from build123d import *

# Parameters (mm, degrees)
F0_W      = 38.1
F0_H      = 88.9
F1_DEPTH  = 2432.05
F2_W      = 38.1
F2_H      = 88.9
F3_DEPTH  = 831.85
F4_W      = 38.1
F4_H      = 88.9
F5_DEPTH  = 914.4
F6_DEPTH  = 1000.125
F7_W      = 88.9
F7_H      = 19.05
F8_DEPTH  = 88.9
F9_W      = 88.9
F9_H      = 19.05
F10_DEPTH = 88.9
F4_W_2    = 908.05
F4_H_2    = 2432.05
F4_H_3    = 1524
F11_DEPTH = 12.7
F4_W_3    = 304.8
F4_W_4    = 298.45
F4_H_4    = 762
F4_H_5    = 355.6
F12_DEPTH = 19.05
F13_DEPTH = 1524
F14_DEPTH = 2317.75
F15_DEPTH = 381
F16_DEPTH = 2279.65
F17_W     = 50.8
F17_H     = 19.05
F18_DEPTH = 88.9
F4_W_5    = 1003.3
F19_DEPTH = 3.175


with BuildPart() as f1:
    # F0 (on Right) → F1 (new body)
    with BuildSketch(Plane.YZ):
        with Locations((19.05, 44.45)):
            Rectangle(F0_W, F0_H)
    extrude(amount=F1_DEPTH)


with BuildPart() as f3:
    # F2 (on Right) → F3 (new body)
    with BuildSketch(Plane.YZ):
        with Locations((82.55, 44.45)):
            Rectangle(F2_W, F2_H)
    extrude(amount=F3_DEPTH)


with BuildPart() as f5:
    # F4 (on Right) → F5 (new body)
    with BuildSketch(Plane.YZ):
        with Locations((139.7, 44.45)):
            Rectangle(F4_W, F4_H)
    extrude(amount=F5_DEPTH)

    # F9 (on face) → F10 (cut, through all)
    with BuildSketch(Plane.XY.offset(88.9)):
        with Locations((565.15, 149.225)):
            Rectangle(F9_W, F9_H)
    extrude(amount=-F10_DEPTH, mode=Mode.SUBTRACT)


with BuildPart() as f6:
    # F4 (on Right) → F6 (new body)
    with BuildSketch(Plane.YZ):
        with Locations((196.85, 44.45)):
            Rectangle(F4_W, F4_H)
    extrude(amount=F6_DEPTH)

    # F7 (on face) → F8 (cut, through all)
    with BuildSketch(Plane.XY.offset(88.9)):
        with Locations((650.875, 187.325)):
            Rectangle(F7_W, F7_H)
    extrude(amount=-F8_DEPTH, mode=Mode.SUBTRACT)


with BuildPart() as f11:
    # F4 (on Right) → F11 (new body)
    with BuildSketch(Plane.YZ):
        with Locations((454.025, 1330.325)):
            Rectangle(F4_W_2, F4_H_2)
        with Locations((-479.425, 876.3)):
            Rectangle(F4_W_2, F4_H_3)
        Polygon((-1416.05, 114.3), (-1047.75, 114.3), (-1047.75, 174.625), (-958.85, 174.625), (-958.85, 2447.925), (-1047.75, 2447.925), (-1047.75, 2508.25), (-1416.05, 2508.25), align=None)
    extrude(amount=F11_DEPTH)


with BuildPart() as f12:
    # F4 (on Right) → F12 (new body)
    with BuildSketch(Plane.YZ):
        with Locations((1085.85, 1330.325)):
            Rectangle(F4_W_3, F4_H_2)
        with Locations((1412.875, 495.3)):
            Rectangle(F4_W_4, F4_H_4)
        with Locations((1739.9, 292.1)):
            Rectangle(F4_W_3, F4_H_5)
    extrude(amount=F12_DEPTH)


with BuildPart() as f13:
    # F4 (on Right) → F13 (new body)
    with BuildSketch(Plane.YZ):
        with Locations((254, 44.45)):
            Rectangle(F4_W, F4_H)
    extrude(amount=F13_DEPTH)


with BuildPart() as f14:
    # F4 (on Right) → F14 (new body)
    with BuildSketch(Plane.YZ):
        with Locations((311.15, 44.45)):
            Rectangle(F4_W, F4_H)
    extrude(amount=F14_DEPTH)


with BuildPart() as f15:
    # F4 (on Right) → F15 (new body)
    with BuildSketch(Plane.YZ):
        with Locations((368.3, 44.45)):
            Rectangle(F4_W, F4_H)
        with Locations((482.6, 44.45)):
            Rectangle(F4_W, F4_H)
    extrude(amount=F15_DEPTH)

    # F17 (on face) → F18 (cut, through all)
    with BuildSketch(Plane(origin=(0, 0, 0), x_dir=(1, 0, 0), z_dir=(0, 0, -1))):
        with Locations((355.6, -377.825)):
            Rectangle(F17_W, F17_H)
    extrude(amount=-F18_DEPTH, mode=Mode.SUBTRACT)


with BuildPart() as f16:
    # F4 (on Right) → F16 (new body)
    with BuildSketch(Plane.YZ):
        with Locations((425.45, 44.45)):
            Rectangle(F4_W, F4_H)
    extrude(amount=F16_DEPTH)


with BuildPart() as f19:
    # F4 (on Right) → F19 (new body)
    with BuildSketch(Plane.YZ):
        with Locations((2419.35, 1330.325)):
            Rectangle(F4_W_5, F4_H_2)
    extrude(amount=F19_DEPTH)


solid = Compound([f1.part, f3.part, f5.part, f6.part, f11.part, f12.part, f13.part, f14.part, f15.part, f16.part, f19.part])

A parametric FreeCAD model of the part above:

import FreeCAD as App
import Part
import Sketcher
Q = App.Units.Quantity


def add_polygon(sketch, points):
    """Adds a closed chain of lines whose ends are joined by coincident constraints."""
    first, n = sketch.GeometryCount, len(points)
    for a, b in zip(points, points[1:] + points[:1]):
        sketch.addGeometry(Part.LineSegment(App.Vector(*a, 0), App.Vector(*b, 0)), False)
    for i in range(n):
        sketch.addConstraint(Sketcher.Constraint("Coincident", first + i, 2, first + (i + 1) % n, 1))

doc = App.newDocument("Part")
body = doc.addObject("PartDesign::Body", "Body")

sketch1 = body.newObject("Sketcher::SketchObject", "Sketch")
sketch1.AttachmentSupport = (doc.getObject("YZ_Plane"), [""])
sketch1.MapMode = "FlatFace"
add_polygon(sketch1, [(0, 88.9), (0, 0), (38.1, 0), (38.1, 88.9)])
sketch1.addConstraint([
    Sketcher.Constraint("Vertical", 0),
    Sketcher.Constraint("Horizontal", 1),
    Sketcher.Constraint("Vertical", 2),
    Sketcher.Constraint("Horizontal", 3),
    Sketcher.Constraint("Coincident", 0, 2, -1, 1),
    Sketcher.Constraint("DistanceX", 1, 1, 1, 2, Q("1.5 in")),
    Sketcher.Constraint("DistanceY", 0, 2, 0, 1, Q("3.5 in")),
])
pad1 = body.newObject("PartDesign::Pad", "Pad")
pad1.Profile = sketch1
pad1.Length = Q("95.75 in")
body2 = doc.addObject("PartDesign::Body", "Body001")

sketch2 = body2.newObject("Sketcher::SketchObject", "Sketch001")
sketch2.AttachmentSupport = (doc.getObject("YZ_Plane001"), [""])
sketch2.MapMode = "FlatFace"
add_polygon(sketch2, [(63.5, 88.9), (63.5, 0), (101.6, 0), (101.6, 88.9)])
sketch2.addConstraint([
    Sketcher.Constraint("Vertical", 0),
    Sketcher.Constraint("Horizontal", 1),
    Sketcher.Constraint("Vertical", 2),
    Sketcher.Constraint("Horizontal", 3),
    Sketcher.Constraint("PointOnObject", 0, 2, -1),
    Sketcher.Constraint("DistanceX", 1, 1, 1, 2, Q("1.5 in")),
    Sketcher.Constraint("DistanceY", 0, 2, 0, 1, Q("3.5 in")),
    Sketcher.Constraint("DistanceX", -1, 1, 1, 2, Q("4 in")),
])
pad2 = body2.newObject("PartDesign::Pad", "Pad001")
pad2.Profile = sketch2
pad2.Length = Q("32.75 in")
body3 = doc.addObject("PartDesign::Body", "Body002")

sketch3 = body3.newObject("Sketcher::SketchObject", "Sketch002")
sketch3.AttachmentSupport = (doc.getObject("YZ_Plane002"), [""])
sketch3.MapMode = "FlatFace"
add_polygon(sketch3, [(120.65, 88.9), (120.65, 0), (158.75, 0), (158.75, 88.9)])
sketch3.addConstraint([
    Sketcher.Constraint("Vertical", 0),
    Sketcher.Constraint("Horizontal", 1),
    Sketcher.Constraint("Vertical", 2),
    Sketcher.Constraint("Horizontal", 3),
    Sketcher.Constraint("PointOnObject", 0, 2, -1),
    Sketcher.Constraint("DistanceX", 1, 1, 1, 2, Q("1.5 in")),
    Sketcher.Constraint("DistanceY", 0, 2, 0, 1, Q("3.5 in")),
    Sketcher.Constraint("DistanceX", -1, 1, 0, 2, Q("4.75 in")),
])
pad3 = body3.newObject("PartDesign::Pad", "Pad002")
pad3.Profile = sketch3
pad3.Length = Q("36 in")

sketch4 = body3.newObject("Sketcher::SketchObject", "Sketch003")
sketch4.AttachmentSupport = (doc.getObject("XY_Plane002"), [""])
sketch4.MapMode = "FlatFace"
sketch4.AttachmentOffset = App.Placement(App.Vector(0, 0, 3.5 * 25.4), App.Rotation())
add_polygon(sketch4, [(520.7, 158.75), (520.7, 139.7), (609.6, 139.7), (609.6, 158.75)])
sketch4.addConstraint([
    Sketcher.Constraint("Vertical", 0),
    Sketcher.Constraint("Horizontal", 1),
    Sketcher.Constraint("Vertical", 2),
    Sketcher.Constraint("Horizontal", 3),
    Sketcher.Constraint("DistanceX", 1, 1, 1, 2, Q("3.5 in")),
    Sketcher.Constraint("DistanceX", -1, 1, 1, 2, Q("24 in")),
    Sketcher.Constraint("DistanceY", 0, 2, 0, 1, Q("0.75 in")),
    Sketcher.Constraint("DistanceY", -1, 1, 0, 2, Q("5.5 in")),
])
pocket1 = body3.newObject("PartDesign::Pocket", "Pocket")
pocket1.Profile = sketch4
pocket1.Type = "ThroughAll"
body4 = doc.addObject("PartDesign::Body", "Body003")

sketch5 = body4.newObject("Sketcher::SketchObject", "Sketch004")
sketch5.AttachmentSupport = (doc.getObject("YZ_Plane003"), [""])
sketch5.MapMode = "FlatFace"
add_polygon(sketch5, [(177.8, 88.9), (177.8, 0), (215.9, 0), (215.9, 88.9)])
sketch5.addConstraint([
    Sketcher.Constraint("Vertical", 0),
    Sketcher.Constraint("Horizontal", 1),
    Sketcher.Constraint("Vertical", 2),
    Sketcher.Constraint("Horizontal", 3),
    Sketcher.Constraint("PointOnObject", 0, 2, -1),
    Sketcher.Constraint("DistanceX", 1, 1, 1, 2, Q("1.5 in")),
    Sketcher.Constraint("DistanceY", 0, 2, 0, 1, Q("3.5 in")),
    Sketcher.Constraint("DistanceX", -1, 1, 0, 2, Q("7 in")),
])
pad4 = body4.newObject("PartDesign::Pad", "Pad003")
pad4.Profile = sketch5
pad4.Length = Q("39.375 in")

sketch6 = body4.newObject("Sketcher::SketchObject", "Sketch005")
sketch6.AttachmentSupport = (doc.getObject("XY_Plane003"), [""])
sketch6.MapMode = "FlatFace"
sketch6.AttachmentOffset = App.Placement(App.Vector(0, 0, 3.5 * 25.4), App.Rotation())
add_polygon(sketch6, [(606.425, 196.85), (606.425, 177.8), (695.325, 177.8), (695.325, 196.85)])
sketch6.addConstraint([
    Sketcher.Constraint("Vertical", 0),
    Sketcher.Constraint("Horizontal", 1),
    Sketcher.Constraint("Vertical", 2),
    Sketcher.Constraint("Horizontal", 3),
    Sketcher.Constraint("DistanceX", 1, 1, 1, 2, Q("3.5 in")),
    Sketcher.Constraint("DistanceY", -1, 1, 0, 2, Q("7 in")),
    Sketcher.Constraint("DistanceY", 0, 2, 0, 1, Q("0.75 in")),
    Sketcher.Constraint("DistanceX", -1, 1, 0, 2, Q("23.875 in")),
])
pocket2 = body4.newObject("PartDesign::Pocket", "Pocket001")
pocket2.Profile = sketch6
pocket2.Type = "ThroughAll"
body5 = doc.addObject("PartDesign::Body", "Body004")
body5.AllowCompound = True

sketch7 = body5.newObject("Sketcher::SketchObject", "Sketch006")
sketch7.AttachmentSupport = (doc.getObject("YZ_Plane004"), [""])
sketch7.MapMode = "FlatFace"
add_polygon(sketch7, [(0, 2546.35), (0, 114.3), (908.05, 114.3), (908.05, 2546.35)])
add_polygon(sketch7, [(-933.45, 1638.3), (-933.45, 114.3), (-25.4, 114.3), (-25.4, 1638.3)])
add_polygon(sketch7, [(-1416.05, 114.3), (-1047.75, 114.3), (-1047.75, 174.625), (-958.85, 174.625), (-958.85, 2447.925), (-1047.75, 2447.925), (-1047.75, 2508.25), (-1416.05, 2508.25)])
sketch7.addConstraint([
    Sketcher.Constraint("Vertical", 0),
    Sketcher.Constraint("Horizontal", 1),
    Sketcher.Constraint("Vertical", 2),
    Sketcher.Constraint("Horizontal", 3),
    Sketcher.Constraint("Vertical", 4),
    Sketcher.Constraint("Horizontal", 5),
    Sketcher.Constraint("Vertical", 6),
    Sketcher.Constraint("Horizontal", 7),
    Sketcher.Constraint("Horizontal", 8),
    Sketcher.Constraint("Vertical", 9),
    Sketcher.Constraint("Horizontal", 10),
    Sketcher.Constraint("Vertical", 11),
    Sketcher.Constraint("Horizontal", 12),
    Sketcher.Constraint("Vertical", 13),
    Sketcher.Constraint("Horizontal", 14),
    Sketcher.Constraint("Vertical", 15),
    Sketcher.Constraint("PointOnObject", 0, 2, -2),
    Sketcher.Constraint("Horizontal", 1, 2, 4, 2),
    Sketcher.Constraint("Horizontal", 5, 2, 8, 2),
    Sketcher.Constraint("Vertical", 9, 2, 12, 2),
    Sketcher.Constraint("Equal", 3, 5),
    Sketcher.Constraint("Equal", 9, 13),
    Sketcher.Constraint("DistanceY", 4, 2, 4, 1, Q("60 in")),
    Sketcher.Constraint("DistanceX", 8, 1, 8, 2, Q("14.5 in")),
    Sketcher.Constraint("DistanceX", 10, 1, 10, 2, Q("3.5 in")),
    Sketcher.Constraint("DistanceY", 11, 1, 11, 2, Q("89.5 in")),
    Sketcher.Constraint("DistanceX", 5, 2, -1, 1, Q("1 in")),
    Sketcher.Constraint("DistanceX", 10, 2, 4, 2, Q("1 in")),
    Sketcher.Constraint("DistanceX", 12, 2, 2, 2, Q("77 in")),
    Sketcher.Constraint("DistanceY", 0, 2, 0, 1, Q("95.75 in")),
    Sketcher.Constraint("DistanceY", 15, 2, 15, 1, Q("94.25 in")),
    Sketcher.Constraint("DistanceY", -1, 1, 0, 2, Q("4.5 in")),
])
pad5 = body5.newObject("PartDesign::Pad", "Pad004")
pad5.Profile = sketch7
pad5.Length = Q("0.5 in")
body6 = doc.addObject("PartDesign::Body", "Body005")
body6.AllowCompound = True

sketch8 = body6.newObject("Sketcher::SketchObject", "Sketch007")
sketch8.AttachmentSupport = (doc.getObject("YZ_Plane005"), [""])
sketch8.MapMode = "FlatFace"
add_polygon(sketch8, [(933.45, 2546.35), (933.45, 114.3), (1238.25, 114.3), (1238.25, 2546.35)])
add_polygon(sketch8, [(1263.65, 876.3), (1263.65, 114.3), (1562.1, 114.3), (1562.1, 876.3)])
add_polygon(sketch8, [(1587.5, 469.9), (1587.5, 114.3), (1892.3, 114.3), (1892.3, 469.9)])
sketch8.addConstraint([
    Sketcher.Constraint("Vertical", 0),
    Sketcher.Constraint("Horizontal", 1),
    Sketcher.Constraint("Vertical", 2),
    Sketcher.Constraint("Horizontal", 3),
    Sketcher.Constraint("Vertical", 4),
    Sketcher.Constraint("Horizontal", 5),
    Sketcher.Constraint("Vertical", 6),
    Sketcher.Constraint("Horizontal", 7),
    Sketcher.Constraint("Vertical", 8),
    Sketcher.Constraint("Horizontal", 9),
    Sketcher.Constraint("Vertical", 10),
    Sketcher.Constraint("Horizontal", 11),
    Sketcher.Constraint("Horizontal", 1, 2, 4, 2),
    Sketcher.Constraint("Horizontal", 5, 2, 8, 2),
    Sketcher.Constraint("Equal", 3, 9),
    Sketcher.Constraint("DistanceX", 1, 1, 1, 2, Q("12 in")),
    Sketcher.Constraint("DistanceY", 4, 2, 4, 1, Q("30 in")),
    Sketcher.Constraint("DistanceY", 8, 2, 8, 1, Q("14 in")),
    Sketcher.Constraint("DistanceX", 1, 2, 4, 2, Q("1 in")),
    Sketcher.Constraint("DistanceX", 5, 2, 8, 2, Q("1 in")),
    Sketcher.Constraint("DistanceX", 5, 1, 5, 2, Q("11.75 in")),
    Sketcher.Constraint("DistanceY", 0, 2, 0, 1, Q("95.75 in")),
    Sketcher.Constraint("DistanceY", -1, 1, 0, 2, Q("4.5 in")),
    Sketcher.Constraint("DistanceX", -1, 1, 5, 2, Q("61.5 in")),
])
pad6 = body6.newObject("PartDesign::Pad", "Pad005")
pad6.Profile = sketch8
pad6.Length = Q("0.75 in")
body7 = doc.addObject("PartDesign::Body", "Body006")

sketch9 = body7.newObject("Sketcher::SketchObject", "Sketch008")
sketch9.AttachmentSupport = (doc.getObject("YZ_Plane006"), [""])
sketch9.MapMode = "FlatFace"
add_polygon(sketch9, [(234.95, 88.9), (234.95, 0), (273.05, 0), (273.05, 88.9)])
sketch9.addConstraint([
    Sketcher.Constraint("Vertical", 0),
    Sketcher.Constraint("Horizontal", 1),
    Sketcher.Constraint("Vertical", 2),
    Sketcher.Constraint("Horizontal", 3),
    Sketcher.Constraint("PointOnObject", 0, 2, -1),
    Sketcher.Constraint("DistanceX", 1, 1, 1, 2, Q("1.5 in")),
    Sketcher.Constraint("DistanceY", 0, 2, 0, 1, Q("3.5 in")),
    Sketcher.Constraint("DistanceX", -1, 1, 0, 2, Q("9.25 in")),
])
pad7 = body7.newObject("PartDesign::Pad", "Pad006")
pad7.Profile = sketch9
pad7.Length = Q("60 in")
body8 = doc.addObject("PartDesign::Body", "Body007")

sketch10 = body8.newObject("Sketcher::SketchObject", "Sketch009")
sketch10.AttachmentSupport = (doc.getObject("YZ_Plane007"), [""])
sketch10.MapMode = "FlatFace"
add_polygon(sketch10, [(292.1, 88.9), (292.1, 0), (330.2, 0), (330.2, 88.9)])
sketch10.addConstraint([
    Sketcher.Constraint("Vertical", 0),
    Sketcher.Constraint("Horizontal", 1),
    Sketcher.Constraint("Vertical", 2),
    Sketcher.Constraint("Horizontal", 3),
    Sketcher.Constraint("PointOnObject", 0, 2, -1),
    Sketcher.Constraint("DistanceX", 1, 1, 1, 2, Q("1.5 in")),
    Sketcher.Constraint("DistanceY", 0, 2, 0, 1, Q("3.5 in")),
    Sketcher.Constraint("DistanceX", -1, 1, 1, 2, Q("13 in")),
])
pad8 = body8.newObject("PartDesign::Pad", "Pad007")
pad8.Profile = sketch10
pad8.Length = Q("91.25 in")
body9 = doc.addObject("PartDesign::Body", "Body008")
body9.AllowCompound = True

sketch11 = body9.newObject("Sketcher::SketchObject", "Sketch010")
sketch11.AttachmentSupport = (doc.getObject("YZ_Plane008"), [""])
sketch11.MapMode = "FlatFace"
add_polygon(sketch11, [(349.25, 88.9), (349.25, 0), (387.35, 0), (387.35, 88.9)])
add_polygon(sketch11, [(463.55, 88.9), (463.55, 0), (501.65, 0), (501.65, 88.9)])
sketch11.addConstraint([
    Sketcher.Constraint("Vertical", 0),
    Sketcher.Constraint("Horizontal", 1),
    Sketcher.Constraint("Vertical", 2),
    Sketcher.Constraint("Horizontal", 3),
    Sketcher.Constraint("Vertical", 4),
    Sketcher.Constraint("Horizontal", 5),
    Sketcher.Constraint("Vertical", 6),
    Sketcher.Constraint("Horizontal", 7),
    Sketcher.Constraint("PointOnObject", 0, 2, -1),
    Sketcher.Constraint("PointOnObject", 4, 2, -1),
    Sketcher.Constraint("Horizontal", 3, 2, 6, 2),
    Sketcher.Constraint("Equal", 3, 5),
    Sketcher.Constraint("DistanceX", 1, 1, 1, 2, Q("1.5 in")),
    Sketcher.Constraint("DistanceY", 0, 2, 0, 1, Q("3.5 in")),
    Sketcher.Constraint("DistanceX", 1, 2, 4, 2, Q("3 in")),
    Sketcher.Constraint("DistanceX", -1, 1, 0, 2, Q("13.75 in")),
])
pad9 = body9.newObject("PartDesign::Pad", "Pad008")
pad9.Profile = sketch11
pad9.Length = Q("15 in")

sketch12 = body9.newObject("Sketcher::SketchObject", "Sketch011")
sketch12.AttachmentSupport = (doc.getObject("XY_Plane008"), [""])
sketch12.MapMode = "FlatFace"
add_polygon(sketch12, [(330.2, 368.3), (330.2, 387.35), (381, 387.35), (381, 368.3)])
sketch12.addConstraint([
    Sketcher.Constraint("Vertical", 0),
    Sketcher.Constraint("Horizontal", 1),
    Sketcher.Constraint("Vertical", 2),
    Sketcher.Constraint("Horizontal", 3),
    Sketcher.Constraint("DistanceX", 1, 1, 1, 2, Q("2 in")),
    Sketcher.Constraint("DistanceX", -1, 1, 0, 2, Q("13 in")),
    Sketcher.Constraint("DistanceY", 0, 1, 0, 2, Q("0.75 in")),
    Sketcher.Constraint("DistanceY", -1, 1, 2, 2, Q("14.5 in")),
])
pocket3 = body9.newObject("PartDesign::Pocket", "Pocket002")
pocket3.Profile = sketch12
pocket3.Type = "ThroughAll"
pocket3.Reversed = True
body10 = doc.addObject("PartDesign::Body", "Body009")

sketch13 = body10.newObject("Sketcher::SketchObject", "Sketch012")
sketch13.AttachmentSupport = (doc.getObject("YZ_Plane009"), [""])
sketch13.MapMode = "FlatFace"
add_polygon(sketch13, [(406.4, 88.9), (406.4, 0), (444.5, 0), (444.5, 88.9)])
sketch13.addConstraint([
    Sketcher.Constraint("Vertical", 0),
    Sketcher.Constraint("Horizontal", 1),
    Sketcher.Constraint("Vertical", 2),
    Sketcher.Constraint("Horizontal", 3),
    Sketcher.Constraint("PointOnObject", 0, 2, -1),
    Sketcher.Constraint("DistanceX", 1, 1, 1, 2, Q("1.5 in")),
    Sketcher.Constraint("DistanceY", 0, 2, 0, 1, Q("3.5 in")),
    Sketcher.Constraint("DistanceX", -1, 1, 0, 2, Q("16 in")),
])
pad10 = body10.newObject("PartDesign::Pad", "Pad009")
pad10.Profile = sketch13
pad10.Length = Q("89.75 in")
body11 = doc.addObject("PartDesign::Body", "Body010")

sketch14 = body11.newObject("Sketcher::SketchObject", "Sketch013")
sketch14.AttachmentSupport = (doc.getObject("YZ_Plane010"), [""])
sketch14.MapMode = "FlatFace"
add_polygon(sketch14, [(1917.7, 2546.35), (1917.7, 114.3), (2921, 114.3), (2921, 2546.35)])
sketch14.addConstraint([
    Sketcher.Constraint("Vertical", 0),
    Sketcher.Constraint("Horizontal", 1),
    Sketcher.Constraint("Vertical", 2),
    Sketcher.Constraint("Horizontal", 3),
    Sketcher.Constraint("DistanceX", 1, 1, 1, 2, Q("39.5 in")),
    Sketcher.Constraint("DistanceX", -1, 1, 1, 2, Q("115 in")),
    Sketcher.Constraint("DistanceY", 0, 2, 0, 1, Q("95.75 in")),
    Sketcher.Constraint("DistanceY", -1, 1, 0, 2, Q("4.5 in")),
])
pad11 = body11.newObject("PartDesign::Pad", "Pad010")
pad11.Profile = sketch14
pad11.Length = Q("0.125 in")

doc.recompute()
